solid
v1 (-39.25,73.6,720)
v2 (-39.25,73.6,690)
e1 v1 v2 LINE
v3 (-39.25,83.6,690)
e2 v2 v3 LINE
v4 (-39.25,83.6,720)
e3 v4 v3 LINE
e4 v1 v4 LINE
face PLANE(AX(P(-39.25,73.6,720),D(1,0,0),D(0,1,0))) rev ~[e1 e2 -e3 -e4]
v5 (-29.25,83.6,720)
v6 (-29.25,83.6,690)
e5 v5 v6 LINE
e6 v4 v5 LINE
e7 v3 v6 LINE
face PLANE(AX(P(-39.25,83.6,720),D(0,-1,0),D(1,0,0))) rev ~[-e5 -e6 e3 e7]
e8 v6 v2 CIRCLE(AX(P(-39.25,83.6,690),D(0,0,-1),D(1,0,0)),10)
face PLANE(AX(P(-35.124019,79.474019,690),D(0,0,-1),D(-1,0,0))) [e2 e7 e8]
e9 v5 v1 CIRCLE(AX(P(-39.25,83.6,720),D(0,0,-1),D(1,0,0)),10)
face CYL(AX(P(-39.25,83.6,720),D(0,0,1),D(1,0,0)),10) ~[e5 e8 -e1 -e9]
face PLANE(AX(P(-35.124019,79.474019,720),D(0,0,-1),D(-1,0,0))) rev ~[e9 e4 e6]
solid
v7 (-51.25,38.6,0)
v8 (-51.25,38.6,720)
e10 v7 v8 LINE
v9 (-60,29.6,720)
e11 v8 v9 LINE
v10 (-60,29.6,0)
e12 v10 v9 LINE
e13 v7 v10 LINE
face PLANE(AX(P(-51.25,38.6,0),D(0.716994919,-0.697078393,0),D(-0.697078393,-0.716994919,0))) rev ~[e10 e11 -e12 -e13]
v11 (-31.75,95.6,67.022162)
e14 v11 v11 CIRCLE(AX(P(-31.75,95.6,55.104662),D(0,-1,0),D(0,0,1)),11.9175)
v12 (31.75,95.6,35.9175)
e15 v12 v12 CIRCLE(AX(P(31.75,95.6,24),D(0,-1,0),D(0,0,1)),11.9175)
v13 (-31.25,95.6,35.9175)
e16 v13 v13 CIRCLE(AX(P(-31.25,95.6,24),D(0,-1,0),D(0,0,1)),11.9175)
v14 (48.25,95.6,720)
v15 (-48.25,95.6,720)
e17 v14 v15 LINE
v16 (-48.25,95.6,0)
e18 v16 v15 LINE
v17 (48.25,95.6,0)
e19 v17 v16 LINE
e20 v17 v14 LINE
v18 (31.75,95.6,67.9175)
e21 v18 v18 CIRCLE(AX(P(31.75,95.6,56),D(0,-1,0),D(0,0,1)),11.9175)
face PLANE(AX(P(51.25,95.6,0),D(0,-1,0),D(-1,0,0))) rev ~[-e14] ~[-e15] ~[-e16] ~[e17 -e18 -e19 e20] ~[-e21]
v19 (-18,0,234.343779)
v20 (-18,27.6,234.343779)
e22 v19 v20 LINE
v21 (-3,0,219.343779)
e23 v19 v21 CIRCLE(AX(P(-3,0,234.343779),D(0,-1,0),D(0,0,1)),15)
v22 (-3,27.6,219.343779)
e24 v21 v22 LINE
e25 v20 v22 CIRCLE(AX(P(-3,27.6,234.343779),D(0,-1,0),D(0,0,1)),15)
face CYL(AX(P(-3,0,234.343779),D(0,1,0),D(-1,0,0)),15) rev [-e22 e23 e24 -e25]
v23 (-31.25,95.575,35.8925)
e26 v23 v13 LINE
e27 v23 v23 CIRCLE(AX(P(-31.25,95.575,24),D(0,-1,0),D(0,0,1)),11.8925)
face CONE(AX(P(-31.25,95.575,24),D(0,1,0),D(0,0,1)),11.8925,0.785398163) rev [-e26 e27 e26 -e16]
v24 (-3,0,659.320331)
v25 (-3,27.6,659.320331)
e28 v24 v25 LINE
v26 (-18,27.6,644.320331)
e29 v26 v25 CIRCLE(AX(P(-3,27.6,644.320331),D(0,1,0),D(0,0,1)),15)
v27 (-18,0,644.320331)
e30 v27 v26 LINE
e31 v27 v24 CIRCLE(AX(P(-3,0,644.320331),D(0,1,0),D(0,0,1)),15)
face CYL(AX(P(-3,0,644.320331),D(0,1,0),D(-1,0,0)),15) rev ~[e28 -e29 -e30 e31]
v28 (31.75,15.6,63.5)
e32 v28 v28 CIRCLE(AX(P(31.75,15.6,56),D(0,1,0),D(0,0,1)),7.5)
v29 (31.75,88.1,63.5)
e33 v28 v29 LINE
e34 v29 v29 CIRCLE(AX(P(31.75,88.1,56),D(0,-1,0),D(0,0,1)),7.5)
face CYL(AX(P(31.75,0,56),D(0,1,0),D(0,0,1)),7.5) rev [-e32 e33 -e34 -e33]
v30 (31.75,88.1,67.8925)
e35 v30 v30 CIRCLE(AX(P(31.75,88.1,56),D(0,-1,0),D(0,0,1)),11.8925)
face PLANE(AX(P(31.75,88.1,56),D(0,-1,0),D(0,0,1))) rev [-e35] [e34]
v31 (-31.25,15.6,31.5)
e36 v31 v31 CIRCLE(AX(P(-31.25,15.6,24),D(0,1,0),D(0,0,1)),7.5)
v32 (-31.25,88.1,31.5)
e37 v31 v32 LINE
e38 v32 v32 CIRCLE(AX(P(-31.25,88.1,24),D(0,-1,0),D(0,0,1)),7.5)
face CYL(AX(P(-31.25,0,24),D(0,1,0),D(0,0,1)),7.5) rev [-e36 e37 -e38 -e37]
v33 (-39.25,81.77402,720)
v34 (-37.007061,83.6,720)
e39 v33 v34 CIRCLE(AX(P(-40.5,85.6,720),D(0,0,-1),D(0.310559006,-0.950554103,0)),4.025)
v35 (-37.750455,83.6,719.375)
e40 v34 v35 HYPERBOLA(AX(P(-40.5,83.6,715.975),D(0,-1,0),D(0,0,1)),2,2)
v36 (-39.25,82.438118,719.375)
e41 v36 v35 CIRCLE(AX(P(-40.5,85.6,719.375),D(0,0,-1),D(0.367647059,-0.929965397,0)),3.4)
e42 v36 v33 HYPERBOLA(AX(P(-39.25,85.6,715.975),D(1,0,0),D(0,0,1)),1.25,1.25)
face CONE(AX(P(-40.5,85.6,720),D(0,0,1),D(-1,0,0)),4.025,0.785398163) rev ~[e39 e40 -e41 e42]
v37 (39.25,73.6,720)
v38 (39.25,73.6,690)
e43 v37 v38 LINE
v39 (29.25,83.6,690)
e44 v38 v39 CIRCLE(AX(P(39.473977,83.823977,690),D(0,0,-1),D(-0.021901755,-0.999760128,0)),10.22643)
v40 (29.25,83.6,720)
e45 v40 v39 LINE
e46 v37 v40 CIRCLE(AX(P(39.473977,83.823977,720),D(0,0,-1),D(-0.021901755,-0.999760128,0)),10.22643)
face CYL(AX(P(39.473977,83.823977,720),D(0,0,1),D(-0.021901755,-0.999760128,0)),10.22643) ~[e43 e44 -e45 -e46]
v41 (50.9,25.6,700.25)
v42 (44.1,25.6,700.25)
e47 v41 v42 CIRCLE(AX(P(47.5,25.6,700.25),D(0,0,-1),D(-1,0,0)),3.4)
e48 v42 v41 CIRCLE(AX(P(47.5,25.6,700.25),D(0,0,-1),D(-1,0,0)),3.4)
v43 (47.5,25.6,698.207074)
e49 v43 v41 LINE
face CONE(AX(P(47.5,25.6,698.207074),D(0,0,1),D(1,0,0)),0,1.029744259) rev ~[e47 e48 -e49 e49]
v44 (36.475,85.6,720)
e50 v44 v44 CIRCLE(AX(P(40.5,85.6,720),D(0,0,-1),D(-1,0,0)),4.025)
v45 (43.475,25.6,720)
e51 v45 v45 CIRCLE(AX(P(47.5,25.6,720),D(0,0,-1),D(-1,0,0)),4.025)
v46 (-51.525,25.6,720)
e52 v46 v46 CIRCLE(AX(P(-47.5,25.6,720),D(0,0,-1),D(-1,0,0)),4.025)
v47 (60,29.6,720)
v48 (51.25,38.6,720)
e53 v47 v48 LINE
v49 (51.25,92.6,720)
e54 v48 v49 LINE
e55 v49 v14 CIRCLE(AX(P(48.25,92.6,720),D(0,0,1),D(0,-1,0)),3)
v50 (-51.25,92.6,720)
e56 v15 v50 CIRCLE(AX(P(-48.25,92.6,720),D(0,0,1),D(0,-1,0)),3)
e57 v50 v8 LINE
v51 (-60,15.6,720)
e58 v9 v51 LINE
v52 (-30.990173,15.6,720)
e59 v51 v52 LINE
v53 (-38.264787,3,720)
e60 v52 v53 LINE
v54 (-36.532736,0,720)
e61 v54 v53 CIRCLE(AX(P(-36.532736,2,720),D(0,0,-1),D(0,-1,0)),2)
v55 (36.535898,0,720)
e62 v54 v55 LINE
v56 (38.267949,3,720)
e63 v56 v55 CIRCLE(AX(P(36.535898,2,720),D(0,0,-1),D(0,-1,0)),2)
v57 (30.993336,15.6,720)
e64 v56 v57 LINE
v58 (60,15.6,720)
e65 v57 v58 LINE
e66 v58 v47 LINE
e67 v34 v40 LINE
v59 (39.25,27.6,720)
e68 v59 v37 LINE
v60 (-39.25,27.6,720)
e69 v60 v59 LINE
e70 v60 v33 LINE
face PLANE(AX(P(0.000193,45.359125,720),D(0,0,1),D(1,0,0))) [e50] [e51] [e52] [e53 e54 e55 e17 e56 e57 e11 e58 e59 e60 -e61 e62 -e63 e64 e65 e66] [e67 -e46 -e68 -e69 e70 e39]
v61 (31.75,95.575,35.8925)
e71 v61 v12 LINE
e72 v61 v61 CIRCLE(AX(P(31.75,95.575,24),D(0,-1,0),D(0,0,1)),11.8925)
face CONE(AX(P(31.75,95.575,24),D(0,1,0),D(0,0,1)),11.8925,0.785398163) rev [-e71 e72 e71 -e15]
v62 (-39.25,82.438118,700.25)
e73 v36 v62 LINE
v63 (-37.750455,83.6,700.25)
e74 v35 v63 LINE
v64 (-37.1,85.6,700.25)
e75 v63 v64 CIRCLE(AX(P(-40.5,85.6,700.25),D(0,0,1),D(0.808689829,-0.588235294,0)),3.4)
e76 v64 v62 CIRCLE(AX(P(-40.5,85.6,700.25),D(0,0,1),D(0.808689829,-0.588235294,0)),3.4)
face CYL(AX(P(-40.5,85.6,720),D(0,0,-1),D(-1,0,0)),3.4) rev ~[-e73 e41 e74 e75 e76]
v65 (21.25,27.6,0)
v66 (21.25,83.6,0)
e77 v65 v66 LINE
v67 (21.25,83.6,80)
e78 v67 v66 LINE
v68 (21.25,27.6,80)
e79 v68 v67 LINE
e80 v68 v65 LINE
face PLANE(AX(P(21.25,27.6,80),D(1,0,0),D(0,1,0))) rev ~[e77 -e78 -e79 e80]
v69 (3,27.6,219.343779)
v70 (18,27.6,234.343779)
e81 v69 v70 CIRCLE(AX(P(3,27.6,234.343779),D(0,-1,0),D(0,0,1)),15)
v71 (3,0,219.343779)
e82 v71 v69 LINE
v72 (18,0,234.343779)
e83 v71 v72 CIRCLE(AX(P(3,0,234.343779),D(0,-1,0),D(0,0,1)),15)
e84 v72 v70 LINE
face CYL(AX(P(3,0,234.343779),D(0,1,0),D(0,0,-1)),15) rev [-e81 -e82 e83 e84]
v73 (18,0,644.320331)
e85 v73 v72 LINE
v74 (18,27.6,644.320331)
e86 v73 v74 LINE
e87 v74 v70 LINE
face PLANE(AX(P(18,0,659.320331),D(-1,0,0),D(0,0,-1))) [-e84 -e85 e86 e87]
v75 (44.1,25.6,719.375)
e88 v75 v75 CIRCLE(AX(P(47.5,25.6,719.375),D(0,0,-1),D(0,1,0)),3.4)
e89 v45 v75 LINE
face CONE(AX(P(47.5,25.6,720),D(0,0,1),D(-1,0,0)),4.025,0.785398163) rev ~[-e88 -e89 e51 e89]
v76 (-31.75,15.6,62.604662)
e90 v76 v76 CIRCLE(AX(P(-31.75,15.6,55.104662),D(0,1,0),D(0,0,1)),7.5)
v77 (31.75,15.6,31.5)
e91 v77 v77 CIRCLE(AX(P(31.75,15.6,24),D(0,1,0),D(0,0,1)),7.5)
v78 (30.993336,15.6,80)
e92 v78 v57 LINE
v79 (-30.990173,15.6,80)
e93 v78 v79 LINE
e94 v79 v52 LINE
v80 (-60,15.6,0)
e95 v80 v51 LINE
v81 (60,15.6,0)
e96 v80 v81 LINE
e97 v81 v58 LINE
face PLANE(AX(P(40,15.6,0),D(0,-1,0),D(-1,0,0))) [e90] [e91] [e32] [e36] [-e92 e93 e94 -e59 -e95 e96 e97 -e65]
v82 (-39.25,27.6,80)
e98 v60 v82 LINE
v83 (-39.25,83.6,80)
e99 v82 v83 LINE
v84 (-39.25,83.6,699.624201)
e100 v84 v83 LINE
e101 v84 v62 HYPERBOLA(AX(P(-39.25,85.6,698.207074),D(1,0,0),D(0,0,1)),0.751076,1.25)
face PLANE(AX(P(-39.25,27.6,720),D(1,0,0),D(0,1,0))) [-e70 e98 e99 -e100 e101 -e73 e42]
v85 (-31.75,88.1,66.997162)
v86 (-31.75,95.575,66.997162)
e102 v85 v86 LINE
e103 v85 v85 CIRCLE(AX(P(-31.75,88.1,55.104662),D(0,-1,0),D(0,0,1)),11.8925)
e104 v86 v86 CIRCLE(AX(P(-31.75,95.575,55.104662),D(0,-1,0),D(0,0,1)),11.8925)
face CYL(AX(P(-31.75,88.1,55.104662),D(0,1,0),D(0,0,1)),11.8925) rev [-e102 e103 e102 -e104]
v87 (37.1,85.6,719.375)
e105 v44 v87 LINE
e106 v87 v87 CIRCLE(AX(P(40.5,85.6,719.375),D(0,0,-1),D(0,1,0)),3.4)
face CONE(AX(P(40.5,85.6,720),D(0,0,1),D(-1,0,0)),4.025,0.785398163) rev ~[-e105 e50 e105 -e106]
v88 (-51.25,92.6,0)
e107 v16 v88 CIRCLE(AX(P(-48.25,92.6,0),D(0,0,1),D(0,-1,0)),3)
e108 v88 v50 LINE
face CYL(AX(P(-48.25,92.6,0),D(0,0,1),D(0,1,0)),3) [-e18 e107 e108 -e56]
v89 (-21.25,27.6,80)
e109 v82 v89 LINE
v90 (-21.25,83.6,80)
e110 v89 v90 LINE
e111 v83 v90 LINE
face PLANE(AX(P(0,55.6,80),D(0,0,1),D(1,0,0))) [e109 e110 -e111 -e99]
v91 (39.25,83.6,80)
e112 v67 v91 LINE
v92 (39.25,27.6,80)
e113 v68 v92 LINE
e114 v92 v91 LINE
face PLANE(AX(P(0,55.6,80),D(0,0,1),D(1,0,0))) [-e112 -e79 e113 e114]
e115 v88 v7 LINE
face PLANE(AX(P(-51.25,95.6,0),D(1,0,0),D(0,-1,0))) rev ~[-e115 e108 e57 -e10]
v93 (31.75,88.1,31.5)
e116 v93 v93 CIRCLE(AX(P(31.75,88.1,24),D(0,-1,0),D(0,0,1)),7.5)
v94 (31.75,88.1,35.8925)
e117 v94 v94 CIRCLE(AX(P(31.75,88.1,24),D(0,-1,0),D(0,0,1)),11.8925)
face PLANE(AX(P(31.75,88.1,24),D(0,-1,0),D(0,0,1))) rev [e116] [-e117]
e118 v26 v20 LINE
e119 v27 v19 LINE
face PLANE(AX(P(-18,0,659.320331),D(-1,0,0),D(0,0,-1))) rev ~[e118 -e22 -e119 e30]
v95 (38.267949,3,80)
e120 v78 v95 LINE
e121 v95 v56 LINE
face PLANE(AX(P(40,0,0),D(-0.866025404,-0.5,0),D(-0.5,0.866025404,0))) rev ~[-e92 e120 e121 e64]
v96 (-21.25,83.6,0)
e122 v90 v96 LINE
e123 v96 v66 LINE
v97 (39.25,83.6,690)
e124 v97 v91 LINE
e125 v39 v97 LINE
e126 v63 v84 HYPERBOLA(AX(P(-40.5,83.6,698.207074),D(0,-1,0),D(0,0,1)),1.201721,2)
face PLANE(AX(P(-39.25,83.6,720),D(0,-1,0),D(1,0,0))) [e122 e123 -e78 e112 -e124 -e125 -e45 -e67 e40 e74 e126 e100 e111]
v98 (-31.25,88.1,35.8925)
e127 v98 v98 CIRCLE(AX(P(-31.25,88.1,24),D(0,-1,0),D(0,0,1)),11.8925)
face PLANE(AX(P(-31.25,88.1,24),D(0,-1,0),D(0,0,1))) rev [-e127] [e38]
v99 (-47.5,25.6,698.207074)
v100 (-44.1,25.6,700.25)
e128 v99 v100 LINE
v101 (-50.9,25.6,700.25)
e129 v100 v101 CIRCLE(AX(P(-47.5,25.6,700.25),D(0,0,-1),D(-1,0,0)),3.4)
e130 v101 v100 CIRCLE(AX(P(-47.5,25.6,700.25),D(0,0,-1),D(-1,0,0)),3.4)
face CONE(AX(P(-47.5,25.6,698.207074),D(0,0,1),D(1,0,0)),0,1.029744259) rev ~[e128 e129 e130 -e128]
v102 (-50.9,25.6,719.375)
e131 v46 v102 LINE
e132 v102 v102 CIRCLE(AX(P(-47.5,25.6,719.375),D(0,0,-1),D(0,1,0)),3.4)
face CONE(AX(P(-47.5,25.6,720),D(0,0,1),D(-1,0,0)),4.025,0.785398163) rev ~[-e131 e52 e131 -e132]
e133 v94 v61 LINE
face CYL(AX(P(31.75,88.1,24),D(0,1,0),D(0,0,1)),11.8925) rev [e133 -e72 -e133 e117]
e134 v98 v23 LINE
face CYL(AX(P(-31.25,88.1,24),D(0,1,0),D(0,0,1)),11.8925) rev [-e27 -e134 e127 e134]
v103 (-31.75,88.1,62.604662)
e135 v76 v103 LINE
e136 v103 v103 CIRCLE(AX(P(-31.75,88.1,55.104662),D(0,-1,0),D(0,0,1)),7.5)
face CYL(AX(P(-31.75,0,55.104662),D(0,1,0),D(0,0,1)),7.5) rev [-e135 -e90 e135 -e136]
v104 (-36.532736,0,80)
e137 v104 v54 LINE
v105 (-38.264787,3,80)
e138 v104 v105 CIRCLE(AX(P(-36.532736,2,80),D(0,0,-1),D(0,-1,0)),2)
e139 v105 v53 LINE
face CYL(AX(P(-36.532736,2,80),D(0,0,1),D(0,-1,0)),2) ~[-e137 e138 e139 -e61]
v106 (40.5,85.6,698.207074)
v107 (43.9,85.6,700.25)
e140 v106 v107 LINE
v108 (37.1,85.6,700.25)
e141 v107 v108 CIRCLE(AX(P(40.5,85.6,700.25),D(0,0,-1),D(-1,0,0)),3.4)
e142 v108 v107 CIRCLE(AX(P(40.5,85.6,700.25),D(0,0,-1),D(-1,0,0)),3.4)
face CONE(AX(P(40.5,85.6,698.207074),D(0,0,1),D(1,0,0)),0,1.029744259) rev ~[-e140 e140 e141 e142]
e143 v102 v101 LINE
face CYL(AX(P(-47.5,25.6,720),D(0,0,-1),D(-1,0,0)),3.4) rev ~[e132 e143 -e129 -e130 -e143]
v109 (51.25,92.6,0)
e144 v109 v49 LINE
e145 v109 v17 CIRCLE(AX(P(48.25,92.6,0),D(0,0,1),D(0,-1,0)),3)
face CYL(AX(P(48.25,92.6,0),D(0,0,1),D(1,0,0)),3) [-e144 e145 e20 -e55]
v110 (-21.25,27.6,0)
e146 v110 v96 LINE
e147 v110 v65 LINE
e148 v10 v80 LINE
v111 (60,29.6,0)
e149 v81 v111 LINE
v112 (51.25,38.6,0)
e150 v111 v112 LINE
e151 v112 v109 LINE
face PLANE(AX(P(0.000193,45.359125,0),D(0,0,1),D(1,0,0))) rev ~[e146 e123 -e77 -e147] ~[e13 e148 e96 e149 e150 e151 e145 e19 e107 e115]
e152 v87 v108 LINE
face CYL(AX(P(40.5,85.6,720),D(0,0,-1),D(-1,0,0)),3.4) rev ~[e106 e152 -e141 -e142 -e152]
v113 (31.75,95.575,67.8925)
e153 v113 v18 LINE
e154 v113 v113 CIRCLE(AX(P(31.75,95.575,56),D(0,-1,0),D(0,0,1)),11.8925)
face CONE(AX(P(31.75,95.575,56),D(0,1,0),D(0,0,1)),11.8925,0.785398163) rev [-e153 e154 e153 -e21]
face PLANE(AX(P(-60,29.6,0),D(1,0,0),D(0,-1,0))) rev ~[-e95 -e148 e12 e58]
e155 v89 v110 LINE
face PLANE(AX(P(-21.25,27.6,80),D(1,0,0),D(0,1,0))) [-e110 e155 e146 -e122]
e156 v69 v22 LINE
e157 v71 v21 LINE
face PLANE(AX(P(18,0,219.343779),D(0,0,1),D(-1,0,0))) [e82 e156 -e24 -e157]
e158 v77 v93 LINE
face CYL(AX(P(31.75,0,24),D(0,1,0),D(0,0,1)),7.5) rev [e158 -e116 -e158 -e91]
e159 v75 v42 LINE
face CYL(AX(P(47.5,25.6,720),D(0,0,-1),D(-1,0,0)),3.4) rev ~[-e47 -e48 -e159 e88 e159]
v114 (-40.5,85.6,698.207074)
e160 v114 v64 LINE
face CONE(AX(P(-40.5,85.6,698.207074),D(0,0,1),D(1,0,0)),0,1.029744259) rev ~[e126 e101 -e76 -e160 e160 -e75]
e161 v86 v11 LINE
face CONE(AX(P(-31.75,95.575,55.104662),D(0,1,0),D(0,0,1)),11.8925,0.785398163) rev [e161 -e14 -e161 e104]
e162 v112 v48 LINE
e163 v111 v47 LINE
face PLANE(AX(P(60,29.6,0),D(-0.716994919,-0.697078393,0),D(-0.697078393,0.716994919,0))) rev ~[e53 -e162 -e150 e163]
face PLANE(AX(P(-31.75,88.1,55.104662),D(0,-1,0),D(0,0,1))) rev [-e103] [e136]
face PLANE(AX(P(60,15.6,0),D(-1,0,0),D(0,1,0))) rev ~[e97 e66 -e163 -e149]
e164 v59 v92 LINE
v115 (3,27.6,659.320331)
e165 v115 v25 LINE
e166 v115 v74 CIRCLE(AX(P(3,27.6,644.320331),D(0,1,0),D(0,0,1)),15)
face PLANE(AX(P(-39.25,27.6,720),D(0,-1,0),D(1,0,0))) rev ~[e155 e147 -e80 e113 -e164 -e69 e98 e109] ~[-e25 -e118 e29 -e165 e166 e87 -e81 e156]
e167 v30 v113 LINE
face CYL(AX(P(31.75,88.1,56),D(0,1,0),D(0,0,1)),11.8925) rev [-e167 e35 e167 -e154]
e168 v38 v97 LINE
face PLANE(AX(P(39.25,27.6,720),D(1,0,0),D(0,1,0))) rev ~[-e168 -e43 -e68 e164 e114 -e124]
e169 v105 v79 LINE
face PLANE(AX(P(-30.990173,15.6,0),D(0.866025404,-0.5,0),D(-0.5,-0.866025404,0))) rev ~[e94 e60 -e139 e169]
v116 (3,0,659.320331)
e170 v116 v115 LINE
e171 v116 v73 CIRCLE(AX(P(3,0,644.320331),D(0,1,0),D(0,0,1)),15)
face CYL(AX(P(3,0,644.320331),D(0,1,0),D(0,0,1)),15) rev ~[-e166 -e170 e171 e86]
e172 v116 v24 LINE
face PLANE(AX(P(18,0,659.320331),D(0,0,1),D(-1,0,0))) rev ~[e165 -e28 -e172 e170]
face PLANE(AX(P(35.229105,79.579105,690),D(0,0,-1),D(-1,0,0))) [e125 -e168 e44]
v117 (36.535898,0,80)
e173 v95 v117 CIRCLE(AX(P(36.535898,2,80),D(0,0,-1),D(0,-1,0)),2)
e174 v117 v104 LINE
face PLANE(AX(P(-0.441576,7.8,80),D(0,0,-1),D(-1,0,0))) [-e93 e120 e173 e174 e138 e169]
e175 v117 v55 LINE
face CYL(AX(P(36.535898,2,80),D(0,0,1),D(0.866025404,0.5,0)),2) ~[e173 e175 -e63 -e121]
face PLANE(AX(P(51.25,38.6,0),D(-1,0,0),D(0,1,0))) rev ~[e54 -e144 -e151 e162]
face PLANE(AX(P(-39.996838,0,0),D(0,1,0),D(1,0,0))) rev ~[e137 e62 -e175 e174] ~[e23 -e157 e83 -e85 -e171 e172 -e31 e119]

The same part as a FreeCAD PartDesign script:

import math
import FreeCAD as App
import Part
import Sketcher
from FreeCAD import Vector
Q = App.Units.Quantity


def edges_at(feature, points):
    """Names of the edges that pass closest to the given points."""
    edges = feature.Shape.Edges
    near = lambda p: min(range(len(edges)), key=lambda i: edges[i].distToShape(Part.Vertex(*p))[0])
    return sorted({f"Edge{near(p) + 1}" for p in points})

doc = App.newDocument("Part")
params = doc.addObject("Spreadsheet::Sheet", "Params")
for row, (alias, value) in enumerate([
    ("sketch1_height", "14 mm"),
    ("sketch1_height2", "57 mm"),
    ("sketch1_width", "102.5 mm"),
    ("pad1_length", "720 mm"),
    ("sketch2_height", "15.6 mm"),
    ("pocket1_length", "80 mm"),
    ("sketch3_width", "95.6 mm"),
    ("sketch3_width2", "88.1 mm"),
    ("sketch3_height", "7.5 mm"),
    ("groove_angle", "360 deg"),
    ("linearpattern_pitch", "63 mm"),
    ("sketch4_width", "95.6 mm"),
    ("sketch4_width2", "88.1 mm"),
    ("sketch4_height", "7.5 mm"),
    ("groove2_angle", "360 deg"),
    ("linearpattern2_pitch", "63.506312 mm"),
    ("sketch5_height", "56 mm"),
    ("sketch5_width", "78.5 mm"),
    ("pocket2_length", "640 mm"),
    ("sketch6_height", "56 mm"),
    ("sketch6_width", "42.5 mm"),
    ("pocket3_length", "90 mm"),
    ("pad2_length", "30 mm"),
    ("sketch8_diameter", "6.8 mm"),
    ("hole_diameter", "6.8 mm"),
    ("hole_depth", "19.75 mm"),
    ("hole_csink_diameter", "8.05 mm"),
    ("sketch9_diameter", "6.8 mm"),
    ("hole2_diameter", "6.8 mm"),
    ("hole2_depth", "19.75 mm"),
    ("hole2_csink_diameter", "8.05 mm"),
    ("sketch10_width", "36 mm"),
    ("pocket4_length", "30 mm"),
    ("fillet_radius", "15 mm"),
    ("fillet2_radius", "15 mm"),
    ("fillet3_radius", "15 mm"),
    ("fillet4_radius", "15 mm"),
    ("fillet5_radius", "3 mm"),
    ("fillet6_radius", "3 mm"),
    ("fillet7_radius", "2 mm"),
    ("fillet8_radius", "2 mm"),
    ("sketch11_radius", "10 mm"),
    ("pad3_length", "30 mm"),
], start=1):
    params.set(f"A{row}", alias)
    params.set(f"B{row}", "=" + value)
    params.setAlias(f"B{row}", alias)

body = doc.addObject("PartDesign::Body", "Body")

# Sketch on XY plane
sketch1 = doc.addObject("Sketcher::SketchObject", "Sketch")
body.addObject(sketch1)
sketch1.AttachmentSupport = (doc.XY_Plane, [""])
sketch1.MapMode = "FlatFace"
sketch1.addGeometry([
    Part.LineSegment(Vector(-39.996838, 0, 0), Vector(40, 0, 0)),  # 0
    Part.LineSegment(Vector(40, 0, 0), Vector(30.993336, 15.6, 0)),  # 1
    Part.LineSegment(Vector(30.993336, 15.6, 0), Vector(60, 15.6, 0)),  # 2
    Part.LineSegment(Vector(60, 15.6, 0), Vector(60, 29.6, 0)),  # 3
    Part.LineSegment(Vector(60, 29.6, 0), Vector(51.25, 38.6, 0)),  # 4
    Part.LineSegment(Vector(51.25, 38.6, 0), Vector(51.25, 95.6, 0)),  # 5
    Part.LineSegment(Vector(51.25, 95.6, 0), Vector(-51.25, 95.6, 0)),  # 6
    Part.LineSegment(Vector(-51.25, 95.6, 0), Vector(-51.25, 38.6, 0)),  # 7
    Part.LineSegment(Vector(-51.25, 38.6, 0), Vector(-60, 29.6, 0)),  # 8
    Part.LineSegment(Vector(-60, 29.6, 0), Vector(-60, 15.6, 0)),  # 9
    Part.LineSegment(Vector(-60, 15.6, 0), Vector(-30.990173, 15.6, 0)),  # 10
    Part.LineSegment(Vector(-30.990173, 15.6, 0), Vector(-39.996838, 0, 0)),  # 11
], False)
sketch1.addConstraint([
    Sketcher.Constraint("Coincident", 0, 2, 1, 1),
    Sketcher.Constraint("Coincident", 1, 2, 2, 1),
    Sketcher.Constraint("Coincident", 2, 2, 3, 1),
    Sketcher.Constraint("Coincident", 3, 2, 4, 1),
    Sketcher.Constraint("Coincident", 4, 2, 5, 1),
    Sketcher.Constraint("Coincident", 5, 2, 6, 1),
    Sketcher.Constraint("Coincident", 6, 2, 7, 1),
    Sketcher.Constraint("Coincident", 7, 2, 8, 1),
    Sketcher.Constraint("Coincident", 8, 2, 9, 1),
    Sketcher.Constraint("Coincident", 9, 2, 10, 1),
    Sketcher.Constraint("Coincident", 10, 2, 11, 1),
    Sketcher.Constraint("Coincident", 11, 2, 0, 1),
    Sketcher.Constraint("Horizontal", 0),
    Sketcher.Constraint("Horizontal", 2),
    Sketcher.Constraint("Vertical", 3),
    Sketcher.Constraint("Vertical", 5),
    Sketcher.Constraint("Horizontal", 6),
    Sketcher.Constraint("Vertical", 7),
    Sketcher.Constraint("Vertical", 9),
    Sketcher.Constraint("Horizontal", 10),
    Sketcher.Constraint("Symmetric", 4, 2, 7, 2, -2),
    Sketcher.Constraint("Symmetric", 3, 2, 8, 2, -2),
    Sketcher.Constraint("PointOnObject", 0, 2, -1),
    Sketcher.Constraint("Horizontal", 2, 2, 9, 2),
    Sketcher.Constraint("Equal", 1, 11),
    Sketcher.Constraint("DistanceY", 3, 1, 3, 2, 14.0),
    Sketcher.Constraint("DistanceY", 5, 1, 5, 2, 57.0),
    Sketcher.Constraint("Angle", 1, Q("120 deg")),
    Sketcher.Constraint("DistanceX", 6, 2, 6, 1, 102.5),
    Sketcher.Constraint("DistanceX", -1, 1, 0, 2, 40.0),
    Sketcher.Constraint("DistanceX", -1, 1, 2, 2, 60.0),
    Sketcher.Constraint("DistanceY", 3, 2, 4, 2, 9.0),
    Sketcher.Constraint("DistanceY", -1, 1, 1, 2, 15.6),
    Sketcher.Constraint("DistanceX", 0, 1, 0, 2, 79.996838),
])
sketch1.setExpression("Constraints[25]", "Params.sketch1_height")
sketch1.setExpression("Constraints[26]", "Params.sketch1_height2")
sketch1.setExpression("Constraints[28]", "Params.sketch1_width")
pad1 = doc.addObject("PartDesign::Pad", "Pad")
body.addObject(pad1)
pad1.Profile = sketch1
pad1.setExpression("Length", "Params.pad1_length")

# Sketch on XY plane
sketch2 = doc.addObject("Sketcher::SketchObject", "Sketch001")
body.addObject(sketch2)
sketch2.AttachmentSupport = (doc.XY_Plane, [""])
sketch2.MapMode = "FlatFace"
sketch2.addGeometry([
    Part.LineSegment(Vector(40, 15.6, 0), Vector(40, 0, 0)),
    Part.LineSegment(Vector(40, 0, 0), Vector(-40.883152, 0, 0)),
    Part.LineSegment(Vector(-40.883152, 0, 0), Vector(-40.883152, 15.6, 0)),
    Part.LineSegment(Vector(-40.883152, 15.6, 0), Vector(40, 15.6, 0)),
], False)
sketch2.addConstraint([
    Sketcher.Constraint("Coincident", 0, 2, 1, 1),
    Sketcher.Constraint("Coincident", 1, 2, 2, 1),
    Sketcher.Constraint("Coincident", 2, 2, 3, 1),
    Sketcher.Constraint("Coincident", 3, 2, 0, 1),
    Sketcher.Constraint("Vertical", 0),
    Sketcher.Constraint("Horizontal", 1),
    Sketcher.Constraint("Vertical", 2),
    Sketcher.Constraint("Horizontal", 3),
    Sketcher.Constraint("PointOnObject", 0, 2, -1),
    Sketcher.Constraint("DistanceY", 0, 2, 0, 1, 15.6),
    Sketcher.Constraint("DistanceX", -1, 1, 0, 2, 40.0),
    Sketcher.Constraint("DistanceX", 1, 2, 1, 1, 80.883152),
])
sketch2.setExpression("Constraints[9]", "Params.sketch2_height")
pocket1 = doc.addObject("PartDesign::Pocket", "Pocket")
body.addObject(pocket1)
pocket1.Profile = sketch2
pocket1.setExpression("Length", "Params.pocket1_length")
pocket1.Reversed = True

# Sketch on YZ plane
sketch3 = doc.addObject("Sketcher::SketchObject", "Sketch002")
body.addObject(sketch3)
sketch3.AttachmentSupport = (doc.YZ_Plane, [""])
sketch3.MapMode = "FlatFace"
sketch3.AttachmentOffset = App.Placement(Vector(0, 0, 31.75), App.Rotation())
sketch3.addGeometry([
    Part.LineSegment(Vector(0, 24, 0), Vector(95.6, 24, 0)),  # 0
    Part.LineSegment(Vector(95.6, 24, 0), Vector(95.6, 35.9175, 0)),  # 1
    Part.LineSegment(Vector(95.6, 35.9175, 0), Vector(95.575, 35.8925, 0)),  # 2
    Part.LineSegment(Vector(95.575, 35.8925, 0), Vector(88.1, 35.8925, 0)),  # 3
    Part.LineSegment(Vector(88.1, 35.8925, 0), Vector(88.1, 31.5, 0)),  # 4
    Part.LineSegment(Vector(88.1, 31.5, 0), Vector(0, 31.5, 0)),  # 5
    Part.LineSegment(Vector(0, 31.5, 0), Vector(0, 24, 0)),  # 6
], False)
sketch3.addGeometry(Part.LineSegment(Vector(95.6, 24, 0), Vector(0, 24, 0)), True)  # axis
sketch3.addConstraint([
    Sketcher.Constraint("Coincident", 0, 2, 1, 1),
    Sketcher.Constraint("Coincident", 1, 2, 2, 1),
    Sketcher.Constraint("Coincident", 2, 2, 3, 1),
    Sketcher.Constraint("Coincident", 3, 2, 4, 1),
    Sketcher.Constraint("Coincident", 4, 2, 5, 1),
    Sketcher.Constraint("Coincident", 5, 2, 6, 1),
    Sketcher.Constraint("Coincident", 6, 2, 0, 1),
    Sketcher.Constraint("Horizontal", 0),
    Sketcher.Constraint("Vertical", 1),
    Sketcher.Constraint("Horizontal", 3),
    Sketcher.Constraint("Vertical", 4),
    Sketcher.Constraint("Horizontal", 5),
    Sketcher.Constraint("Vertical", 6),
    Sketcher.Constraint("Horizontal", 7),
    Sketcher.Constraint("Coincident", 7, 1, 0, 2),
    Sketcher.Constraint("PointOnObject", 5, 2, -2),
    Sketcher.Constraint("PointOnObject", 7, 2, -2),
    Sketcher.Constraint("Angle", 2, Q("-135 deg")),
    Sketcher.Constraint("DistanceX", 0, 1, 0, 2, 95.6),
    Sketcher.Constraint("DistanceX", 5, 2, 5, 1, 88.1),
    Sketcher.Constraint("DistanceY", 6, 2, 6, 1, 7.5),
    Sketcher.Constraint("DistanceY", -1, 1, 0, 2, 24.0),
    Sketcher.Constraint("DistanceX", 3, 2, 3, 1, 7.475),
    Sketcher.Constraint("DistanceY", 1, 1, 1, 2, 11.9175),
])
sketch3.setExpression("Constraints[18]", "Params.sketch3_width")
sketch3.setExpression("Constraints[19]", "Params.sketch3_width2")
sketch3.setExpression("Constraints[20]", "Params.sketch3_height")
groove = doc.addObject("PartDesign::Groove", "Groove")
body.addObject(groove)
groove.Profile = sketch3
groove.ReferenceAxis = (sketch3, ["Axis0"])
groove.setExpression("Angle", "Params.groove_angle")
doc.recompute()

linearpattern = doc.addObject("PartDesign::LinearPattern", "LinearPattern")
body.addObject(linearpattern)
linearpattern.Originals = [groove]
linearpattern.Direction = (doc.X_Axis, [""])
linearpattern.Mode = "offset"
linearpattern.setExpression("Offset", "Params.linearpattern_pitch")
linearpattern.Occurrences = 2
linearpattern.Reversed = True
body.Tip = linearpattern

# Sketch on YZ plane
sketch4 = doc.addObject("Sketcher::SketchObject", "Sketch003")
body.addObject(sketch4)
sketch4.AttachmentSupport = (doc.YZ_Plane, [""])
sketch4.MapMode = "FlatFace"
sketch4.AttachmentOffset = App.Placement(Vector(0, 0, 31.75), App.Rotation())
sketch4.addGeometry([
    Part.LineSegment(Vector(0, 56, 0), Vector(95.6, 56, 0)),  # 0
    Part.LineSegment(Vector(95.6, 56, 0), Vector(95.6, 67.9175, 0)),  # 1
    Part.LineSegment(Vector(95.6, 67.9175, 0), Vector(95.575, 67.8925, 0)),  # 2
    Part.LineSegment(Vector(95.575, 67.8925, 0), Vector(88.1, 67.8925, 0)),  # 3
    Part.LineSegment(Vector(88.1, 67.8925, 0), Vector(88.1, 63.5, 0)),  # 4
    Part.LineSegment(Vector(88.1, 63.5, 0), Vector(0, 63.5, 0)),  # 5
    Part.LineSegment(Vector(0, 63.5, 0), Vector(0, 56, 0)),  # 6
], False)
sketch4.addGeometry(Part.LineSegment(Vector(95.6, 56, 0), Vector(0, 56, 0)), True)  # axis
sketch4.addConstraint([
    Sketcher.Constraint("Coincident", 0, 2, 1, 1),
    Sketcher.Constraint("Coincident", 1, 2, 2, 1),
    Sketcher.Constraint("Coincident", 2, 2, 3, 1),
    Sketcher.Constraint("Coincident", 3, 2, 4, 1),
    Sketcher.Constraint("Coincident", 4, 2, 5, 1),
    Sketcher.Constraint("Coincident", 5, 2, 6, 1),
    Sketcher.Constraint("Coincident", 6, 2, 0, 1),
    Sketcher.Constraint("Horizontal", 0),
    Sketcher.Constraint("Vertical", 1),
    Sketcher.Constraint("Horizontal", 3),
    Sketcher.Constraint("Vertical", 4),
    Sketcher.Constraint("Horizontal", 5),
    Sketcher.Constraint("Vertical", 6),
    Sketcher.Constraint("Horizontal", 7),
    Sketcher.Constraint("Coincident", 7, 1, 0, 2),
    Sketcher.Constraint("PointOnObject", 5, 2, -2),
    Sketcher.Constraint("PointOnObject", 7, 2, -2),
    Sketcher.Constraint("Angle", 2, Q("-135 deg")),
    Sketcher.Constraint("DistanceX", 0, 1, 0, 2, 95.6),
    Sketcher.Constraint("DistanceX", 5, 2, 5, 1, 88.1),
    Sketcher.Constraint("DistanceY", 6, 2, 6, 1, 7.5),
    Sketcher.Constraint("DistanceY", -1, 1, 0, 2, 56.0),
    Sketcher.Constraint("DistanceX", 3, 2, 3, 1, 7.475),
    Sketcher.Constraint("DistanceY", 1, 1, 1, 2, 11.9175),
])
sketch4.setExpression("Constraints[18]", "Params.sketch4_width")
sketch4.setExpression("Constraints[19]", "Params.sketch4_width2")
sketch4.setExpression("Constraints[20]", "Params.sketch4_height")
groove2 = doc.addObject("PartDesign::Groove", "Groove001")
body.addObject(groove2)
groove2.Profile = sketch4
groove2.ReferenceAxis = (sketch4, ["Axis0"])
groove2.setExpression("Angle", "Params.groove2_angle")
doc.recompute()

datumline = doc.addObject("PartDesign::Line", "DatumLine")
body.addObject(datumline)
datumline.Placement = App.Placement(Vector(0, 0, 0), App.Rotation(Vector(0, 0, 1), Vector(-0.999900612, 0, -0.014098409)))
linearpattern2 = doc.addObject("PartDesign::LinearPattern", "LinearPattern001")
body.addObject(linearpattern2)
linearpattern2.Originals = [groove2]
linearpattern2.Direction = (datumline, [""])
linearpattern2.Mode = "offset"
linearpattern2.setExpression("Offset", "Params.linearpattern2_pitch")
linearpattern2.Occurrences = 2
body.Tip = linearpattern2

# Sketch on XY plane
sketch5 = doc.addObject("Sketcher::SketchObject", "Sketch004")
body.addObject(sketch5)
sketch5.AttachmentSupport = (doc.XY_Plane, [""])
sketch5.MapMode = "FlatFace"
sketch5.AttachmentOffset = App.Placement(Vector(0, 0, 720), App.Rotation())
sketch5.addGeometry([
    Part.LineSegment(Vector(-39.25, 83.6, 0), Vector(-39.25, 27.6, 0)),
    Part.LineSegment(Vector(-39.25, 27.6, 0), Vector(39.25, 27.6, 0)),
    Part.LineSegment(Vector(39.25, 27.6, 0), Vector(39.25, 83.6, 0)),
    Part.LineSegment(Vector(39.25, 83.6, 0), Vector(-39.25, 83.6, 0)),
], False)
sketch5.addConstraint([
    Sketcher.Constraint("Coincident", 0, 2, 1, 1),
    Sketcher.Constraint("Coincident", 1, 2, 2, 1),
    Sketcher.Constraint("Coincident", 2, 2, 3, 1),
    Sketcher.Constraint("Coincident", 3, 2, 0, 1),
    Sketcher.Constraint("Vertical", 0),
    Sketcher.Constraint("Horizontal", 1),
    Sketcher.Constraint("Vertical", 2),
    Sketcher.Constraint("Horizontal", 3),
    Sketcher.Constraint("DistanceY", 0, 2, 0, 1, 56.0),
    Sketcher.Constraint("DistanceX", 1, 1, 1, 2, 78.5),
    Sketcher.Constraint("DistanceY", -1, 1, 0, 2, 27.6),
    Sketcher.Constraint("DistanceX", 0, 2, -1, 1, 39.25),
])
sketch5.setExpression("Constraints[8]", "Params.sketch5_height")
sketch5.setExpression("Constraints[9]", "Params.sketch5_width")
pocket2 = doc.addObject("PartDesign::Pocket", "Pocket001")
body.addObject(pocket2)
pocket2.Profile = sketch5
pocket2.setExpression("Length", "Params.pocket2_length")

# Sketch on XY plane
sketch6 = doc.addObject("Sketcher::SketchObject", "Sketch005")
body.addObject(sketch6)
sketch6.AttachmentSupport = (doc.XY_Plane, [""])
sketch6.MapMode = "FlatFace"
sketch6.AttachmentOffset = App.Placement(Vector(0, 0, 80), App.Rotation())
sketch6.addGeometry([
    Part.LineSegment(Vector(-21.25, 83.6, 0), Vector(-21.25, 27.6, 0)),
    Part.LineSegment(Vector(-21.25, 27.6, 0), Vector(21.25, 27.6, 0)),
    Part.LineSegment(Vector(21.25, 27.6, 0), Vector(21.25, 83.6, 0)),
    Part.LineSegment(Vector(21.25, 83.6, 0), Vector(-21.25, 83.6, 0)),
], False)
sketch6.addConstraint([
    Sketcher.Constraint("Coincident", 0, 2, 1, 1),
    Sketcher.Constraint("Coincident", 1, 2, 2, 1),
    Sketcher.Constraint("Coincident", 2, 2, 3, 1),
    Sketcher.Constraint("Coincident", 3, 2, 0, 1),
    Sketcher.Constraint("Vertical", 0),
    Sketcher.Constraint("Horizontal", 1),
    Sketcher.Constraint("Vertical", 2),
    Sketcher.Constraint("Horizontal", 3),
    Sketcher.Constraint("DistanceY", 0, 2, 0, 1, 56.0),
    Sketcher.Constraint("DistanceX", 1, 1, 1, 2, 42.5),
    Sketcher.Constraint("DistanceY", -1, 1, 0, 2, 27.6),
    Sketcher.Constraint("DistanceX", 0, 2, -1, 1, 21.25),
])
sketch6.setExpression("Constraints[8]", "Params.sketch6_height")
sketch6.setExpression("Constraints[9]", "Params.sketch6_width")
pocket3 = doc.addObject("PartDesign::Pocket", "Pocket002")
body.addObject(pocket3)
pocket3.Profile = sketch6
pocket3.setExpression("Length", "Params.pocket3_length")

# Sketch on XY plane
sketch7 = doc.addObject("Sketcher::SketchObject", "Sketch006")
body.addObject(sketch7)
sketch7.AttachmentSupport = (doc.XY_Plane, [""])
sketch7.MapMode = "FlatFace"
sketch7.AttachmentOffset = App.Placement(Vector(0, 0, 720), App.Rotation())
sketch7.addGeometry([
    Part.LineSegment(Vector(39.473977, 83.823977, 0), Vector(29.25, 83.6, 0)),
    Part.ArcOfCircle(Part.Circle(Vector(39.473977, 83.823977, 0), Vector(0, 0, 1), 10.22643), math.radians(-178.745022), math.radians(-91.254978)),
    Part.LineSegment(Vector(39.25, 73.6, 0), Vector(39.473977, 83.823977, 0)),
], False)
sketch7.addConstraint([
    Sketcher.Constraint("Coincident", 0, 2, 1, 1),
    Sketcher.Constraint("Coincident", 1, 2, 2, 1),
    Sketcher.Constraint("Coincident", 2, 2, 0, 1),
    Sketcher.Constraint("Coincident", 2, 2, 1, 3),
    Sketcher.Constraint("DistanceX", 0, 2, 1, 2, 10.0),
    Sketcher.Constraint("DistanceY", 1, 2, 0, 2, 10.0),
    Sketcher.Constraint("DistanceY", -1, 1, 0, 2, 83.6),
    Sketcher.Constraint("DistanceX", -1, 1, 0, 2, 29.25),
    Sketcher.Constraint("Radius", 1, 10.22643),
])
pad2 = doc.addObject("PartDesign::Pad", "Pad001")
body.addObject(pad2)
pad2.Profile = sketch7
pad2.setExpression("Length", "Params.pad2_length")
pad2.Reversed = True

# Sketch on XY plane
sketch8 = doc.addObject("Sketcher::SketchObject", "Sketch007")
body.addObject(sketch8)
sketch8.AttachmentSupport = (doc.XY_Plane, [""])
sketch8.MapMode = "FlatFace"
sketch8.AttachmentOffset = App.Placement(Vector(0, 0, 720), App.Rotation())
sketch8.addGeometry([
    Part.Circle(Vector(-40.5, 85.6, 0), Vector(0, 0, 1), 3.4),
    Part.Circle(Vector(40.5, 85.6, 0), Vector(0, 0, 1), 3.4),
], False)
sketch8.addConstraint([
    Sketcher.Constraint("Equal", 0, 1),
    Sketcher.Constraint("Symmetric", 0, 3, 1, 3, -2),
    Sketcher.Constraint("Diameter", 0, 6.8),
    Sketcher.Constraint("DistanceX", 0, 3, 1, 3, 81.0),
    Sketcher.Constraint("DistanceY", -1, 1, 0, 3, 85.6),
])
sketch8.setExpression("Constraints[2]", "Params.sketch8_diameter")
doc.recompute()
hole = doc.addObject("PartDesign::Hole", "Hole")
body.addObject(hole)
hole.Profile = sketch8
hole.ThreadType = "None"
hole.setExpression("Diameter", "Params.hole_diameter")
hole.DepthType = "Dimension"
hole.setExpression("Depth", "Params.hole_depth")
hole.DrillPoint = "Angled"
hole.DrillPointAngle = 118
hole.HoleCutType = "Countersink"
hole.setExpression("HoleCutDiameter", "Params.hole_csink_diameter")
hole.HoleCutCountersinkAngle = 90

# Sketch on XY plane
sketch9 = doc.addObject("Sketcher::SketchObject", "Sketch008")
body.addObject(sketch9)
sketch9.AttachmentSupport = (doc.XY_Plane, [""])
sketch9.MapMode = "FlatFace"
sketch9.AttachmentOffset = App.Placement(Vector(0, 0, 720), App.Rotation())
sketch9.addGeometry([
    Part.Circle(Vector(-47.5, 25.6, 0), Vector(0, 0, 1), 3.4),
    Part.Circle(Vector(47.5, 25.6, 0), Vector(0, 0, 1), 3.4),
], False)
sketch9.addConstraint([
    Sketcher.Constraint("Equal", 0, 1),
    Sketcher.Constraint("Symmetric", 0, 3, 1, 3, -2),
    Sketcher.Constraint("Diameter", 0, 6.8),
    Sketcher.Constraint("DistanceX", 0, 3, 1, 3, 95.0),
    Sketcher.Constraint("DistanceY", -1, 1, 0, 3, 25.6),
])
sketch9.setExpression("Constraints[2]", "Params.sketch9_diameter")
doc.recompute()
hole2 = doc.addObject("PartDesign::Hole", "Hole001")
body.addObject(hole2)
hole2.Profile = sketch9
hole2.ThreadType = "None"
hole2.setExpression("Diameter", "Params.hole2_diameter")
hole2.DepthType = "Dimension"
hole2.setExpression("Depth", "Params.hole2_depth")
hole2.DrillPoint = "Angled"
hole2.DrillPointAngle = 118
hole2.HoleCutType = "Countersink"
hole2.setExpression("HoleCutDiameter", "Params.hole2_csink_diameter")
hole2.HoleCutCountersinkAngle = 90

# Sketch on XZ plane
sketch10 = doc.addObject("Sketcher::SketchObject", "Sketch009")
body.addObject(sketch10)
sketch10.AttachmentSupport = (doc.XZ_Plane, [""])
sketch10.MapMode = "FlatFace"
sketch10.addGeometry([
    Part.LineSegment(Vector(18, 219.343779, 0), Vector(18, 659.320331, 0)),
    Part.LineSegment(Vector(18, 659.320331, 0), Vector(-18, 659.320331, 0)),
    Part.LineSegment(Vector(-18, 659.320331, 0), Vector(-18, 219.343779, 0)),
    Part.LineSegment(Vector(-18, 219.343779, 0), Vector(18, 219.343779, 0)),
], False)
sketch10.addConstraint([
    Sketcher.Constraint("Coincident", 0, 2, 1, 1),
    Sketcher.Constraint("Coincident", 1, 2, 2, 1),
    Sketcher.Constraint("Coincident", 2, 2, 3, 1),
    Sketcher.Constraint("Coincident", 3, 2, 0, 1),
    Sketcher.Constraint("Vertical", 0),
    Sketcher.Constraint("Horizontal", 1),
    Sketcher.Constraint("Vertical", 2),
    Sketcher.Constraint("Horizontal", 3),
    Sketcher.Constraint("DistanceX", 1, 2, 1, 1, 36.0),
    Sketcher.Constraint("DistanceX", -1, 1, 0, 2, 18.0),
    Sketcher.Constraint("DistanceY", 0, 1, 0, 2, 439.976552),
    Sketcher.Constraint("DistanceY", -1, 1, 0, 2, 659.320331),
])
sketch10.setExpression("Constraints[8]", "Params.sketch10_width")
pocket4 = doc.addObject("PartDesign::Pocket", "Pocket003")
body.addObject(pocket4)
pocket4.Profile = sketch10
pocket4.setExpression("Length", "Params.pocket4_length")
doc.recompute()

fillet = doc.addObject("PartDesign::Fillet", "Fillet")
body.addObject(fillet)
fillet.Base = (pocket4, edges_at(pocket4, [(-18, 13.8, 659.32)]))
fillet.setExpression("Radius", "Params.fillet_radius")
doc.recompute()

fillet2 = doc.addObject("PartDesign::Fillet", "Fillet001")
body.addObject(fillet2)
fillet2.Base = (fillet, edges_at(fillet, [(18, 13.8, 659.32)]))
fillet2.setExpression("Radius", "Params.fillet2_radius")
doc.recompute()

fillet3 = doc.addObject("PartDesign::Fillet", "Fillet002")
body.addObject(fillet3)
fillet3.Base = (fillet2, edges_at(fillet2, [(-18, 13.8, 219.344)]))
fillet3.setExpression("Radius", "Params.fillet3_radius")
doc.recompute()

fillet4 = doc.addObject("PartDesign::Fillet", "Fillet003")
body.addObject(fillet4)
fillet4.Base = (fillet3, edges_at(fillet3, [(18, 13.8, 219.344)]))
fillet4.setExpression("Radius", "Params.fillet4_radius")
doc.recompute()

fillet5 = doc.addObject("PartDesign::Fillet", "Fillet004")
body.addObject(fillet5)
fillet5.Base = (fillet4, edges_at(fillet4, [(51.25, 95.6, 360)]))
fillet5.setExpression("Radius", "Params.fillet5_radius")
doc.recompute()

fillet6 = doc.addObject("PartDesign::Fillet", "Fillet005")
body.addObject(fillet6)
fillet6.Base = (fillet5, edges_at(fillet5, [(-51.25, 95.6, 360)]))
fillet6.setExpression("Radius", "Params.fillet6_radius")
doc.recompute()

fillet7 = doc.addObject("PartDesign::Fillet", "Fillet006")
body.addObject(fillet7)
fillet7.Base = (fillet6, edges_at(fillet6, [(40, 0, 400)]))
fillet7.setExpression("Radius", "Params.fillet7_radius")
doc.recompute()

fillet8 = doc.addObject("PartDesign::Fillet", "Fillet007")
body.addObject(fillet8)
fillet8.Base = (fillet7, edges_at(fillet7, [(-39.997, 0, 400)]))
fillet8.setExpression("Radius", "Params.fillet8_radius")
body2 = doc.addObject("PartDesign::Body", "Body001")

# Sketch on XY plane
sketch11 = doc.addObject("Sketcher::SketchObject", "Sketch010")
body2.addObject(sketch11)
sketch11.AttachmentSupport = (doc.getObject("XY_Plane001"), [""])
sketch11.MapMode = "FlatFace"
sketch11.AttachmentOffset = App.Placement(Vector(0, 0, 720), App.Rotation())
sketch11.addGeometry([
    Part.LineSegment(Vector(-39.25, 83.6, 0), Vector(-39.25, 73.6, 0)),
    Part.ArcOfCircle(Part.Circle(Vector(-39.25, 83.6, 0), Vector(0, 0, 1), 10), math.radians(-90), math.radians(0)),
    Part.LineSegment(Vector(-29.25, 83.6, 0), Vector(-39.25, 83.6, 0)),
], False)
sketch11.addConstraint([
    Sketcher.Constraint("Coincident", 0, 2, 1, 1),
    Sketcher.Constraint("Coincident", 1, 2, 2, 1),
    Sketcher.Constraint("Coincident", 2, 2, 0, 1),
    Sketcher.Constraint("Vertical", 0),
    Sketcher.Constraint("Horizontal", 2),
    Sketcher.Constraint("Coincident", 2, 2, 1, 3),
    Sketcher.Constraint("Radius", 1, 10.0),
    Sketcher.Constraint("DistanceY", -1, 1, 1, 3, 83.6),
    Sketcher.Constraint("DistanceX", 1, 3, -1, 1, 39.25),
])
sketch11.setExpression("Constraints[6]", "Params.sketch11_radius")
pad3 = doc.addObject("PartDesign::Pad", "Pad002")
body2.addObject(pad3)
pad3.Profile = sketch11
pad3.setExpression("Length", "Params.pad3_length")
pad3.Reversed = True

doc.recompute()
